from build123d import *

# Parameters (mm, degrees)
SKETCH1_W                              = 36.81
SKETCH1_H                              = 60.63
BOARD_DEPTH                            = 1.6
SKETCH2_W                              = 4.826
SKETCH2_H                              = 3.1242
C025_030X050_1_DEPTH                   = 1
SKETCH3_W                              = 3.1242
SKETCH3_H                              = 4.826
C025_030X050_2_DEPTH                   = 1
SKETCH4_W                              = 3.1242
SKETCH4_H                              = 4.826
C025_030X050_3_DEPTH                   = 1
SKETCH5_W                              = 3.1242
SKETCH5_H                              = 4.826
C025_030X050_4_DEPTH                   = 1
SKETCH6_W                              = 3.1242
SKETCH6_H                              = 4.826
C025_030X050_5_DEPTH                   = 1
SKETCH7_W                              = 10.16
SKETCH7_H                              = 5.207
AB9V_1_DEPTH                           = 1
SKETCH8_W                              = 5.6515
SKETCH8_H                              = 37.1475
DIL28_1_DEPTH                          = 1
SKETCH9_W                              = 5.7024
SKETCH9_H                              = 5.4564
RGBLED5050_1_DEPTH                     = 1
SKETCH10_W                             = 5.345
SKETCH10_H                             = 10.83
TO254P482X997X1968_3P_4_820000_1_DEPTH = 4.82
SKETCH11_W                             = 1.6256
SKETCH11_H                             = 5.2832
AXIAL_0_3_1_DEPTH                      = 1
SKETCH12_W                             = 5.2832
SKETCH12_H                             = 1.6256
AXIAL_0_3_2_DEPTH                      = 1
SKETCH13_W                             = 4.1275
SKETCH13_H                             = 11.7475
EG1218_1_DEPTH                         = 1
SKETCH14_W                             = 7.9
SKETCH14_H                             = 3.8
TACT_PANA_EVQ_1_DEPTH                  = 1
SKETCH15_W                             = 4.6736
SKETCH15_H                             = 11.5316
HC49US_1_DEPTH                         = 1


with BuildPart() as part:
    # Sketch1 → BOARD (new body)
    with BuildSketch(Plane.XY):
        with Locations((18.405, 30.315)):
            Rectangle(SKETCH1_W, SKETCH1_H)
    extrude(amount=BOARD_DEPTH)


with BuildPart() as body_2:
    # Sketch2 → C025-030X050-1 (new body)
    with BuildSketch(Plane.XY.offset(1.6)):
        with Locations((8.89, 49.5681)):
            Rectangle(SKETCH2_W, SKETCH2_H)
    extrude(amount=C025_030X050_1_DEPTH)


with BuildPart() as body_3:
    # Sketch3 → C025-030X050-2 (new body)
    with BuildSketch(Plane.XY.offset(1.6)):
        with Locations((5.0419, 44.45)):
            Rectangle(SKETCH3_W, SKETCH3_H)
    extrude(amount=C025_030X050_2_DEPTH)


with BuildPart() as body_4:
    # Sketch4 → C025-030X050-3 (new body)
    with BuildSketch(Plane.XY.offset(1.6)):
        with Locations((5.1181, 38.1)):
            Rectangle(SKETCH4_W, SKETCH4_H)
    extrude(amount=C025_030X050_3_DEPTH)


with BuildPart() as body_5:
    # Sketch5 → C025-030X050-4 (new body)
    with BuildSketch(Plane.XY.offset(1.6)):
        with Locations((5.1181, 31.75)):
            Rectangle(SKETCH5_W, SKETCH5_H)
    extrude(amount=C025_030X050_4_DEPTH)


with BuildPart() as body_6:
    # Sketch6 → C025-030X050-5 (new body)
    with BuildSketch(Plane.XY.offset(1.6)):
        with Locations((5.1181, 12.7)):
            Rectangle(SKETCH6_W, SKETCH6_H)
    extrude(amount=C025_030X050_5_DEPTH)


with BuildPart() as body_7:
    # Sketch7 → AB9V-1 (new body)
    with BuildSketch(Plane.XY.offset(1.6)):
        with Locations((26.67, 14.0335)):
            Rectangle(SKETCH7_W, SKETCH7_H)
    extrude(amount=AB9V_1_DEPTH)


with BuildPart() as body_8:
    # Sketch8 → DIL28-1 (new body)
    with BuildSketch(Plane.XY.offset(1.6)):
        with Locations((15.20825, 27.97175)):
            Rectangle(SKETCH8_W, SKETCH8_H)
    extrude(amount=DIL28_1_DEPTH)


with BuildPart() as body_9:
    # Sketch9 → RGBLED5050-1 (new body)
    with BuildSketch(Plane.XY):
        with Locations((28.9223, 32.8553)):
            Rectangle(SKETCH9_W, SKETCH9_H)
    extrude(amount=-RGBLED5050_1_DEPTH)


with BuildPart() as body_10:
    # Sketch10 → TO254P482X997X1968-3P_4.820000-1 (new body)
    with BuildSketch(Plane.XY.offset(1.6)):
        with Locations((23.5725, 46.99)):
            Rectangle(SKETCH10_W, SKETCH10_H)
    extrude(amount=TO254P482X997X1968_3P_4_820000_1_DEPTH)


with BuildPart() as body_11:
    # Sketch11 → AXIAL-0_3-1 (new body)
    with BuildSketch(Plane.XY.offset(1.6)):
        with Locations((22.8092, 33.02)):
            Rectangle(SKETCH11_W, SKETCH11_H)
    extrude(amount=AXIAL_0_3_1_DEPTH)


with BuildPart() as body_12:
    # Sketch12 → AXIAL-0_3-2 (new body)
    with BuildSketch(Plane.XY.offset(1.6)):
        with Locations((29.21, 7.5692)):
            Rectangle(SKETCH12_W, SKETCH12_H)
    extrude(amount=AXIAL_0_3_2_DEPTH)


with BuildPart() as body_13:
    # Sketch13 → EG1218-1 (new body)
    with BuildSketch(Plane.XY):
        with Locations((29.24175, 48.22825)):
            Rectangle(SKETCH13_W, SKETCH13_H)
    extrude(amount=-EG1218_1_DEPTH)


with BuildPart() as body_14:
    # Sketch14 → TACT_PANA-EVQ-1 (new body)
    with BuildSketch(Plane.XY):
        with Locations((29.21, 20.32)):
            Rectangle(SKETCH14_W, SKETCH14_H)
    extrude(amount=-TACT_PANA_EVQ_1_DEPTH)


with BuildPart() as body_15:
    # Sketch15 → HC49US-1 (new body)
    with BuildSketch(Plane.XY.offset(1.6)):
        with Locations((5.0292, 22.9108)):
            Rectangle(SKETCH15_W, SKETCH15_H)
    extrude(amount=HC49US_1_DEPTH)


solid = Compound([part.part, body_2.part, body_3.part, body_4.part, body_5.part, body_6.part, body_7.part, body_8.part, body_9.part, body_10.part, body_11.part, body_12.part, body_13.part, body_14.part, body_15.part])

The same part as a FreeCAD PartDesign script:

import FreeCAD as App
import Part
import Sketcher

V = App.Vector
Q = App.Units.Quantity

doc = App.newDocument("Part")
body = doc.addObject("PartDesign::Body", "Body")

sketch1 = doc.addObject("Sketcher::SketchObject", "Sketch")
body.addObject(sketch1)
sketch1.AttachmentSupport = (doc.XY_Plane, [""])
sketch1.MapMode = "FlatFace"
sketch1.addGeometry(Part.LineSegment(V(0, 61, 0), V(0, 0, 0)), False)
sketch1.addGeometry(Part.LineSegment(V(0, 0, 0), V(37, 0, 0)), False)
sketch1.addGeometry(Part.LineSegment(V(37, 0, 0), V(37, 61, 0)), False)
sketch1.addGeometry(Part.LineSegment(V(37, 61, 0), V(0, 61, 0)), False)
sketch1.addConstraint(Sketcher.Constraint("Coincident", 0, 2, 1, 1))
sketch1.addConstraint(Sketcher.Constraint("Coincident", 1, 2, 2, 1))
sketch1.addConstraint(Sketcher.Constraint("Coincident", 2, 2, 3, 1))
sketch1.addConstraint(Sketcher.Constraint("Coincident", 3, 2, 0, 1))
sketch1.addConstraint(Sketcher.Constraint("Vertical", 0))
sketch1.addConstraint(Sketcher.Constraint("Horizontal", 1))
sketch1.addConstraint(Sketcher.Constraint("Vertical", 2))
sketch1.addConstraint(Sketcher.Constraint("Horizontal", 3))
sketch1.addConstraint(Sketcher.Constraint("Coincident", 0, 2, -1, 1))
sketch1.addConstraint(Sketcher.Constraint("DistanceX", 1, 1, 1, 2, Q("36.81 mm")))
sketch1.addConstraint(Sketcher.Constraint("DistanceY", 0, 2, 0, 1, Q("60.63 mm")))
pad1 = doc.addObject("PartDesign::Pad", "Pad")
body.addObject(pad1)
pad1.Profile = sketch1
pad1.Length = 1.6
body2 = doc.addObject("PartDesign::Body", "Body001")

sketch2 = doc.addObject("Sketcher::SketchObject", "Sketch001")
body2.addObject(sketch2)
sketch2.AttachmentSupport = (doc.getObject("XY_Plane001"), [""])
sketch2.MapMode = "FlatFace"
sketch2.AttachmentOffset = App.Placement(V(0, 0, 1.6), App.Rotation())
sketch2.addGeometry(Part.LineSegment(V(6.5, 51.1, 0), V(6.5, 48, 0)), False)
sketch2.addGeometry(Part.LineSegment(V(6.5, 48, 0), V(11.3, 48, 0)), False)
sketch2.addGeometry(Part.LineSegment(V(11.3, 48, 0), V(11.3, 51.1, 0)), False)
sketch2.addGeometry(Part.LineSegment(V(11.3, 51.1, 0), V(6.5, 51.1, 0)), False)
sketch2.addConstraint(Sketcher.Constraint("Coincident", 0, 2, 1, 1))
sketch2.addConstraint(Sketcher.Constraint("Coincident", 1, 2, 2, 1))
sketch2.addConstraint(Sketcher.Constraint("Coincident", 2, 2, 3, 1))
sketch2.addConstraint(Sketcher.Constraint("Coincident", 3, 2, 0, 1))
sketch2.addConstraint(Sketcher.Constraint("Vertical", 0))
sketch2.addConstraint(Sketcher.Constraint("Horizontal", 1))
sketch2.addConstraint(Sketcher.Constraint("Vertical", 2))
sketch2.addConstraint(Sketcher.Constraint("Horizontal", 3))
sketch2.addConstraint(Sketcher.Constraint("DistanceX", 1, 1, 1, 2, Q("0.19 in")))
sketch2.addConstraint(Sketcher.Constraint("DistanceY", 0, 2, 0, 1, Q("0.123 in")))
sketch2.addConstraint(Sketcher.Constraint("DistanceY", -1, 1, 0, 2, Q("1.89 in")))
sketch2.addConstraint(Sketcher.Constraint("DistanceX", -1, 1, 0, 2, Q("0.255 in")))
pad2 = doc.addObject("PartDesign::Pad", "Pad001")
body2.addObject(pad2)
pad2.Profile = sketch2
pad2.Length = 1
body3 = doc.addObject("PartDesign::Body", "Body002")

sketch3 = doc.addObject("Sketcher::SketchObject", "Sketch002")
body3.addObject(sketch3)
sketch3.AttachmentSupport = (doc.getObject("XY_Plane002"), [""])
sketch3.MapMode = "FlatFace"
sketch3.AttachmentOffset = App.Placement(V(0, 0, 1.6), App.Rotation())
sketch3.addGeometry(Part.LineSegment(V(3.5, 46.9, 0), V(3.5, 42, 0)), False)
sketch3.addGeometry(Part.LineSegment(V(3.5, 42, 0), V(6.6, 42, 0)), False)
sketch3.addGeometry(Part.LineSegment(V(6.6, 42, 0), V(6.6, 46.9, 0)), False)
sketch3.addGeometry(Part.LineSegment(V(6.6, 46.9, 0), V(3.5, 46.9, 0)), False)
sketch3.addConstraint(Sketcher.Constraint("Coincident", 0, 2, 1, 1))
sketch3.addConstraint(Sketcher.Constraint("Coincident", 1, 2, 2, 1))
sketch3.addConstraint(Sketcher.Constraint("Coincident", 2, 2, 3, 1))
sketch3.addConstraint(Sketcher.Constraint("Coincident", 3, 2, 0, 1))
sketch3.addConstraint(Sketcher.Constraint("Vertical", 0))
sketch3.addConstraint(Sketcher.Constraint("Horizontal", 1))
sketch3.addConstraint(Sketcher.Constraint("Vertical", 2))
sketch3.addConstraint(Sketcher.Constraint("Horizontal", 3))
sketch3.addConstraint(Sketcher.Constraint("DistanceY", 0, 2, 0, 1, Q("0.19 in")))
sketch3.addConstraint(Sketcher.Constraint("DistanceX", 1, 1, 1, 2, Q("0.123 in")))
sketch3.addConstraint(Sketcher.Constraint("DistanceX", -1, 1, 1, 2, Q("0.26 in")))
sketch3.addConstraint(Sketcher.Constraint("DistanceY", -1, 1, 0, 2, Q("1.655 in")))
pad3 = doc.addObject("PartDesign::Pad", "Pad002")
body3.addObject(pad3)
pad3.Profile = sketch3
pad3.Length = 1
body4 = doc.addObject("PartDesign::Body", "Body003")

sketch4 = doc.addObject("Sketcher::SketchObject", "Sketch003")
body4.addObject(sketch4)
sketch4.AttachmentSupport = (doc.getObject("XY_Plane003"), [""])
sketch4.MapMode = "FlatFace"
sketch4.AttachmentOffset = App.Placement(V(0, 0, 1.6), App.Rotation())
sketch4.addGeometry(Part.LineSegment(V(3.6, 40.5, 0), V(3.6, 35.7, 0)), False)
sketch4.addGeometry(Part.LineSegment(V(3.6, 35.7, 0), V(6.7, 35.7, 0)), False)
sketch4.addGeometry(Part.LineSegment(V(6.7, 35.7, 0), V(6.7, 40.5, 0)), False)
sketch4.addGeometry(Part.LineSegment(V(6.7, 40.5, 0), V(3.6, 40.5, 0)), False)
sketch4.addConstraint(Sketcher.Constraint("Coincident", 0, 2, 1, 1))
sketch4.addConstraint(Sketcher.Constraint("Coincident", 1, 2, 2, 1))
sketch4.addConstraint(Sketcher.Constraint("Coincident", 2, 2, 3, 1))
sketch4.addConstraint(Sketcher.Constraint("Coincident", 3, 2, 0, 1))
sketch4.addConstraint(Sketcher.Constraint("Vertical", 0))
sketch4.addConstraint(Sketcher.Constraint("Horizontal", 1))
sketch4.addConstraint(Sketcher.Constraint("Vertical", 2))
sketch4.addConstraint(Sketcher.Constraint("Horizontal", 3))
sketch4.addConstraint(Sketcher.Constraint("DistanceY", 0, 2, 0, 1, Q("0.19 in")))
sketch4.addConstraint(Sketcher.Constraint("DistanceX", 1, 1, 1, 2, Q("0.123 in")))
sketch4.addConstraint(Sketcher.Constraint("DistanceX", -1, 1, 0, 2, Q("0.14 in")))
sketch4.addConstraint(Sketcher.Constraint("DistanceY", -1, 1, 0, 2, Q("1.405 in")))
pad4 = doc.addObject("PartDesign::Pad", "Pad003")
body4.addObject(pad4)
pad4.Profile = sketch4
pad4.Length = 1
body5 = doc.addObject("PartDesign::Body", "Body004")

sketch5 = doc.addObject("Sketcher::SketchObject", "Sketch004")
body5.addObject(sketch5)
sketch5.AttachmentSupport = (doc.getObject("XY_Plane004"), [""])
sketch5.MapMode = "FlatFace"
sketch5.AttachmentOffset = App.Placement(V(0, 0, 1.6), App.Rotation())
sketch5.addGeometry(Part.LineSegment(V(3.6, 34.2, 0), V(3.6, 29.3, 0)), False)
sketch5.addGeometry(Part.LineSegment(V(3.6, 29.3, 0), V(6.7, 29.3, 0)), False)
sketch5.addGeometry(Part.LineSegment(V(6.7, 29.3, 0), V(6.7, 34.2, 0)), False)
sketch5.addGeometry(Part.LineSegment(V(6.7, 34.2, 0), V(3.6, 34.2, 0)), False)
sketch5.addConstraint(Sketcher.Constraint("Coincident", 0, 2, 1, 1))
sketch5.addConstraint(Sketcher.Constraint("Coincident", 1, 2, 2, 1))
sketch5.addConstraint(Sketcher.Constraint("Coincident", 2, 2, 3, 1))
sketch5.addConstraint(Sketcher.Constraint("Coincident", 3, 2, 0, 1))
sketch5.addConstraint(Sketcher.Constraint("Vertical", 0))
sketch5.addConstraint(Sketcher.Constraint("Horizontal", 1))
sketch5.addConstraint(Sketcher.Constraint("Vertical", 2))
sketch5.addConstraint(Sketcher.Constraint("Horizontal", 3))
sketch5.addConstraint(Sketcher.Constraint("DistanceY", 0, 2, 0, 1, Q("0.19 in")))
sketch5.addConstraint(Sketcher.Constraint("DistanceX", 1, 1, 1, 2, Q("0.123 in")))
sketch5.addConstraint(Sketcher.Constraint("DistanceX", -1, 1, 0, 2, Q("0.14 in")))
sketch5.addConstraint(Sketcher.Constraint("DistanceY", -1, 1, 0, 2, Q("1.155 in")))
pad5 = doc.addObject("PartDesign::Pad", "Pad004")
body5.addObject(pad5)
pad5.Profile = sketch5
pad5.Length = 1
body6 = doc.addObject("PartDesign::Body", "Body005")

sketch6 = doc.addObject("Sketcher::SketchObject", "Sketch005")
body6.addObject(sketch6)
sketch6.AttachmentSupport = (doc.getObject("XY_Plane005"), [""])
sketch6.MapMode = "FlatFace"
sketch6.AttachmentOffset = App.Placement(V(0, 0, 1.6), App.Rotation())
sketch6.addGeometry(Part.LineSegment(V(3.6, 15.1, 0), V(3.6, 10.3, 0)), False)
sketch6.addGeometry(Part.LineSegment(V(3.6, 10.3, 0), V(6.7, 10.3, 0)), False)
sketch6.addGeometry(Part.LineSegment(V(6.7, 10.3, 0), V(6.7, 15.1, 0)), False)
sketch6.addGeometry(Part.LineSegment(V(6.7, 15.1, 0), V(3.6, 15.1, 0)), False)
sketch6.addConstraint(Sketcher.Constraint("Coincident", 0, 2, 1, 1))
sketch6.addConstraint(Sketcher.Constraint("Coincident", 1, 2, 2, 1))
sketch6.addConstraint(Sketcher.Constraint("Coincident", 2, 2, 3, 1))
sketch6.addConstraint(Sketcher.Constraint("Coincident", 3, 2, 0, 1))
sketch6.addConstraint(Sketcher.Constraint("Vertical", 0))
sketch6.addConstraint(Sketcher.Constraint("Horizontal", 1))
sketch6.addConstraint(Sketcher.Constraint("Vertical", 2))
sketch6.addConstraint(Sketcher.Constraint("Horizontal", 3))
sketch6.addConstraint(Sketcher.Constraint("DistanceY", 0, 2, 0, 1, Q("0.19 in")))
sketch6.addConstraint(Sketcher.Constraint("DistanceX", 1, 1, 1, 2, Q("0.123 in")))
sketch6.addConstraint(Sketcher.Constraint("DistanceX", -1, 1, 0, 2, Q("0.14 in")))
sketch6.addConstraint(Sketcher.Constraint("DistanceY", -1, 1, 0, 2, Q("0.405 in")))
pad6 = doc.addObject("PartDesign::Pad", "Pad005")
body6.addObject(pad6)
pad6.Profile = sketch6
pad6.Length = 1
body7 = doc.addObject("PartDesign::Body", "Body006")

sketch7 = doc.addObject("Sketcher::SketchObject", "Sketch006")
body7.addObject(sketch7)
sketch7.AttachmentSupport = (doc.getObject("XY_Plane006"), [""])
sketch7.MapMode = "FlatFace"
sketch7.AttachmentOffset = App.Placement(V(0, 0, 1.6), App.Rotation())
sketch7.addGeometry(Part.LineSegment(V(22, 17, 0), V(22, 11, 0)), False)
sketch7.addGeometry(Part.LineSegment(V(22, 11, 0), V(32, 11, 0)), False)
sketch7.addGeometry(Part.LineSegment(V(32, 11, 0), V(32, 17, 0)), False)
sketch7.addGeometry(Part.LineSegment(V(32, 17, 0), V(22, 17, 0)), False)
sketch7.addConstraint(Sketcher.Constraint("Coincident", 0, 2, 1, 1))
sketch7.addConstraint(Sketcher.Constraint("Coincident", 1, 2, 2, 1))
sketch7.addConstraint(Sketcher.Constraint("Coincident", 2, 2, 3, 1))
sketch7.addConstraint(Sketcher.Constraint("Coincident", 3, 2, 0, 1))
sketch7.addConstraint(Sketcher.Constraint("Vertical", 0))
sketch7.addConstraint(Sketcher.Constraint("Horizontal", 1))
sketch7.addConstraint(Sketcher.Constraint("Vertical", 2))
sketch7.addConstraint(Sketcher.Constraint("Horizontal", 3))
sketch7.addConstraint(Sketcher.Constraint("DistanceX", 1, 1, 1, 2, Q("0.4 in")))
sketch7.addConstraint(Sketcher.Constraint("DistanceY", 0, 2, 0, 1, Q("0.205 in")))
sketch7.addConstraint(Sketcher.Constraint("DistanceX", -1, 1, 0, 2, Q("0.85 in")))
sketch7.addConstraint(Sketcher.Constraint("DistanceY", -1, 1, 0, 2, Q("0.45 in")))
pad7 = doc.addObject("PartDesign::Pad", "Pad006")
body7.addObject(pad7)
pad7.Profile = sketch7
pad7.Length = 1
body8 = doc.addObject("PartDesign::Body", "Body007")

sketch8 = doc.addObject("Sketcher::SketchObject", "Sketch007")
body8.addObject(sketch8)
sketch8.AttachmentSupport = (doc.getObject("XY_Plane007"), [""])
sketch8.MapMode = "FlatFace"
sketch8.AttachmentOffset = App.Placement(V(0, 0, 1.6), App.Rotation())
sketch8.addGeometry(Part.LineSegment(V(12, 47, 0), V(12, 9, 0)), False)
sketch8.addGeometry(Part.LineSegment(V(12, 9, 0), V(18, 9, 0)), False)
sketch8.addGeometry(Part.LineSegment(V(18, 9, 0), V(18, 47, 0)), False)
sketch8.addGeometry(Part.LineSegment(V(18, 47, 0), V(12, 47, 0)), False)
sketch8.addConstraint(Sketcher.Constraint("Coincident", 0, 2, 1, 1))
sketch8.addConstraint(Sketcher.Constraint("Coincident", 1, 2, 2, 1))
sketch8.addConstraint(Sketcher.Constraint("Coincident", 2, 2, 3, 1))
sketch8.addConstraint(Sketcher.Constraint("Coincident", 3, 2, 0, 1))
sketch8.addConstraint(Sketcher.Constraint("Vertical", 0))
sketch8.addConstraint(Sketcher.Constraint("Horizontal", 1))
sketch8.addConstraint(Sketcher.Constraint("Vertical", 2))
sketch8.addConstraint(Sketcher.Constraint("Horizontal", 3))
sketch8.addConstraint(Sketcher.Constraint("DistanceY", -1, 1, 0, 2, Q("0.37 in")))
sketch8.addConstraint(Sketcher.Constraint("DistanceX", -1, 1, 1, 2, Q("0.71 in")))
sketch8.addConstraint(Sketcher.Constraint("DistanceX", 1, 1, 1, 2, Q("0.2225 in")))
sketch8.addConstraint(Sketcher.Constraint("DistanceY", 0, 2, 0, 1, Q("1.4625 in")))
pad8 = doc.addObject("PartDesign::Pad", "Pad007")
body8.addObject(pad8)
pad8.Profile = sketch8
pad8.Length = 1
body9 = doc.addObject("PartDesign::Body", "Body008")

sketch9 = doc.addObject("Sketcher::SketchObject", "Sketch008")
body9.addObject(sketch9)
sketch9.AttachmentSupport = (doc.getObject("XY_Plane008"), [""])
sketch9.MapMode = "FlatFace"
sketch9.addGeometry(Part.LineSegment(V(26, 36, 0), V(26, 30, 0)), False)
sketch9.addGeometry(Part.LineSegment(V(26, 30, 0), V(32, 30, 0)), False)
sketch9.addGeometry(Part.LineSegment(V(32, 30, 0), V(32, 36, 0)), False)
sketch9.addGeometry(Part.LineSegment(V(32, 36, 0), V(26, 36, 0)), False)
sketch9.addConstraint(Sketcher.Constraint("Coincident", 0, 2, 1, 1))
sketch9.addConstraint(Sketcher.Constraint("Coincident", 1, 2, 2, 1))
sketch9.addConstraint(Sketcher.Constraint("Coincident", 2, 2, 3, 1))
sketch9.addConstraint(Sketcher.Constraint("Coincident", 3, 2, 0, 1))
sketch9.addConstraint(Sketcher.Constraint("Vertical", 0))
sketch9.addConstraint(Sketcher.Constraint("Horizontal", 1))
sketch9.addConstraint(Sketcher.Constraint("Vertical", 2))
sketch9.addConstraint(Sketcher.Constraint("Horizontal", 3))
sketch9.addConstraint(Sketcher.Constraint("DistanceX", 1, 1, 1, 2, Q("5.7024 mm")))
sketch9.addConstraint(Sketcher.Constraint("DistanceY", 0, 2, 0, 1, Q("5.4564 mm")))
sketch9.addConstraint(Sketcher.Constraint("DistanceX", -1, 1, 0, 2, Q("26.0711 mm")))
sketch9.addConstraint(Sketcher.Constraint("DistanceY", -1, 1, 0, 2, Q("30.1271 mm")))
pad9 = doc.addObject("PartDesign::Pad", "Pad008")
body9.addObject(pad9)
pad9.Profile = sketch9
pad9.Length = 1
pad9.Reversed = True
body10 = doc.addObject("PartDesign::Body", "Body009")

sketch10 = doc.addObject("Sketcher::SketchObject", "Sketch009")
body10.addObject(sketch10)
sketch10.AttachmentSupport = (doc.getObject("XY_Plane009"), [""])
sketch10.MapMode = "FlatFace"
sketch10.AttachmentOffset = App.Placement(V(0, 0, 1.6), App.Rotation())
sketch10.addGeometry(Part.LineSegment(V(21, 52, 0), V(21, 42, 0)), False)
sketch10.addGeometry(Part.LineSegment(V(21, 42, 0), V(26, 42, 0)), False)
sketch10.addGeometry(Part.LineSegment(V(26, 42, 0), V(26, 52, 0)), False)
sketch10.addGeometry(Part.LineSegment(V(26, 52, 0), V(21, 52, 0)), False)
sketch10.addConstraint(Sketcher.Constraint("Coincident", 0, 2, 1, 1))
sketch10.addConstraint(Sketcher.Constraint("Coincident", 1, 2, 2, 1))
sketch10.addConstraint(Sketcher.Constraint("Coincident", 2, 2, 3, 1))
sketch10.addConstraint(Sketcher.Constraint("Coincident", 3, 2, 0, 1))
sketch10.addConstraint(Sketcher.Constraint("Vertical", 0))
sketch10.addConstraint(Sketcher.Constraint("Horizontal", 1))
sketch10.addConstraint(Sketcher.Constraint("Vertical", 2))
sketch10.addConstraint(Sketcher.Constraint("Horizontal", 3))
sketch10.addConstraint(Sketcher.Constraint("DistanceX", 1, 1, 1, 2, Q("5.345 mm")))
sketch10.addConstraint(Sketcher.Constraint("DistanceY", 0, 2, 0, 1, Q("10.83 mm")))
sketch10.addConstraint(Sketcher.Constraint("DistanceX", -1, 1, 0, 2, Q("20.9 mm")))
sketch10.addConstraint(Sketcher.Constraint("DistanceY", -1, 1, 0, 2, Q("41.575 mm")))
pad10 = doc.addObject("PartDesign::Pad", "Pad009")
body10.addObject(pad10)
pad10.Profile = sketch10
pad10.Length = 4.82
body11 = doc.addObject("PartDesign::Body", "Body010")

sketch11 = doc.addObject("Sketcher::SketchObject", "Sketch010")
body11.addObject(sketch11)
sketch11.AttachmentSupport = (doc.getObject("XY_Plane010"), [""])
sketch11.MapMode = "FlatFace"
sketch11.AttachmentOffset = App.Placement(V(0, 0, 1.6), App.Rotation())
sketch11.addGeometry(Part.LineSegment(V(22, 35.7, 0), V(22, 30.4, 0)), False)
sketch11.addGeometry(Part.LineSegment(V(22, 30.4, 0), V(23.6, 30.4, 0)), False)
sketch11.addGeometry(Part.LineSegment(V(23.6, 30.4, 0), V(23.6, 35.7, 0)), False)
sketch11.addGeometry(Part.LineSegment(V(23.6, 35.7, 0), V(22, 35.7, 0)), False)
sketch11.addConstraint(Sketcher.Constraint("Coincident", 0, 2, 1, 1))
sketch11.addConstraint(Sketcher.Constraint("Coincident", 1, 2, 2, 1))
sketch11.addConstraint(Sketcher.Constraint("Coincident", 2, 2, 3, 1))
sketch11.addConstraint(Sketcher.Constraint("Coincident", 3, 2, 0, 1))
sketch11.addConstraint(Sketcher.Constraint("Vertical", 0))
sketch11.addConstraint(Sketcher.Constraint("Horizontal", 1))
sketch11.addConstraint(Sketcher.Constraint("Vertical", 2))
sketch11.addConstraint(Sketcher.Constraint("Horizontal", 3))
sketch11.addConstraint(Sketcher.Constraint("DistanceX", 1, 1, 1, 2, Q("0.064 in")))
sketch11.addConstraint(Sketcher.Constraint("DistanceY", 0, 2, 0, 1, Q("0.208 in")))
sketch11.addConstraint(Sketcher.Constraint("DistanceX", -1, 1, 1, 2, Q("0.93 in")))
sketch11.addConstraint(Sketcher.Constraint("DistanceY", -1, 1, 0, 2, Q("1.196 in")))
pad11 = doc.addObject("PartDesign::Pad", "Pad010")
body11.addObject(pad11)
pad11.Profile = sketch11
pad11.Length = 1
body12 = doc.addObject("PartDesign::Body", "Body011")

sketch12 = doc.addObject("Sketcher::SketchObject", "Sketch011")
body12.addObject(sketch12)
sketch12.AttachmentSupport = (doc.getObject("XY_Plane011"), [""])
sketch12.MapMode = "FlatFace"
sketch12.AttachmentOffset = App.Placement(V(0, 0, 1.6), App.Rotation())
sketch12.addGeometry(Part.LineSegment(V(26.6, 8.4, 0), V(26.6, 6.8, 0)), False)
sketch12.addGeometry(Part.LineSegment(V(26.6, 6.8, 0), V(31.9, 6.8, 0)), False)
sketch12.addGeometry(Part.LineSegment(V(31.9, 6.8, 0), V(31.9, 8.4, 0)), False)
sketch12.addGeometry(Part.LineSegment(V(31.9, 8.4, 0), V(26.6, 8.4, 0)), False)
sketch12.addConstraint(Sketcher.Constraint("Coincident", 0, 2, 1, 1))
sketch12.addConstraint(Sketcher.Constraint("Coincident", 1, 2, 2, 1))
sketch12.addConstraint(Sketcher.Constraint("Coincident", 2, 2, 3, 1))
sketch12.addConstraint(Sketcher.Constraint("Coincident", 3, 2, 0, 1))
sketch12.addConstraint(Sketcher.Constraint("Vertical", 0))
sketch12.addConstraint(Sketcher.Constraint("Horizontal", 1))
sketch12.addConstraint(Sketcher.Constraint("Vertical", 2))
sketch12.addConstraint(Sketcher.Constraint("Horizontal", 3))
sketch12.addConstraint(Sketcher.Constraint("DistanceX", 1, 1, 1, 2, Q("0.208 in")))
sketch12.addConstraint(Sketcher.Constraint("DistanceY", 0, 2, 0, 1, Q("0.064 in")))
sketch12.addConstraint(Sketcher.Constraint("DistanceY", -1, 1, 2, 2, Q("0.33 in")))
sketch12.addConstraint(Sketcher.Constraint("DistanceX", -1, 1, 0, 2, Q("1.046 in")))
pad12 = doc.addObject("PartDesign::Pad", "Pad011")
body12.addObject(pad12)
pad12.Profile = sketch12
pad12.Length = 1
body13 = doc.addObject("PartDesign::Body", "Body012")

sketch13 = doc.addObject("Sketcher::SketchObject", "Sketch012")
body13.addObject(sketch13)
sketch13.AttachmentSupport = (doc.getObject("XY_Plane012"), [""])
sketch13.MapMode = "FlatFace"
sketch13.addGeometry(Part.LineSegment(V(27.2, 54.1, 0), V(27.2, 42.4, 0)), False)
sketch13.addGeometry(Part.LineSegment(V(27.2, 42.4, 0), V(31.3, 42.4, 0)), False)
sketch13.addGeometry(Part.LineSegment(V(31.3, 42.4, 0), V(31.3, 54.1, 0)), False)
sketch13.addGeometry(Part.LineSegment(V(31.3, 54.1, 0), V(27.2, 54.1, 0)), False)
sketch13.addConstraint(Sketcher.Constraint("Coincident", 0, 2, 1, 1))
sketch13.addConstraint(Sketcher.Constraint("Coincident", 1, 2, 2, 1))
sketch13.addConstraint(Sketcher.Constraint("Coincident", 2, 2, 3, 1))
sketch13.addConstraint(Sketcher.Constraint("Coincident", 3, 2, 0, 1))
sketch13.addConstraint(Sketcher.Constraint("Vertical", 0))
sketch13.addConstraint(Sketcher.Constraint("Horizontal", 1))
sketch13.addConstraint(Sketcher.Constraint("Vertical", 2))
sketch13.addConstraint(Sketcher.Constraint("Horizontal", 3))
sketch13.addConstraint(Sketcher.Constraint("DistanceX", -1, 1, 0, 2, Q("1.07 in")))
sketch13.addConstraint(Sketcher.Constraint("DistanceY", -1, 1, 2, 2, Q("2.13 in")))
sketch13.addConstraint(Sketcher.Constraint("DistanceX", 1, 1, 1, 2, Q("0.1625 in")))
sketch13.addConstraint(Sketcher.Constraint("DistanceY", 0, 2, 0, 1, Q("0.4625 in")))
pad13 = doc.addObject("PartDesign::Pad", "Pad012")
body13.addObject(pad13)
pad13.Profile = sketch13
pad13.Length = 1
pad13.Reversed = True
body14 = doc.addObject("PartDesign::Body", "Body013")

sketch14 = doc.addObject("Sketcher::SketchObject", "Sketch013")
body14.addObject(sketch14)
sketch14.AttachmentSupport = (doc.getObject("XY_Plane013"), [""])
sketch14.MapMode = "FlatFace"
sketch14.addGeometry(Part.LineSegment(V(25.3, 22.2, 0), V(25.3, 18.4, 0)), False)
sketch14.addGeometry(Part.LineSegment(V(25.3, 18.4, 0), V(33.2, 18.4, 0)), False)
sketch14.addGeometry(Part.LineSegment(V(33.2, 18.4, 0), V(33.2, 22.2, 0)), False)
sketch14.addGeometry(Part.LineSegment(V(33.2, 22.2, 0), V(25.3, 22.2, 0)), False)
sketch14.addConstraint(Sketcher.Constraint("Coincident", 0, 2, 1, 1))
sketch14.addConstraint(Sketcher.Constraint("Coincident", 1, 2, 2, 1))
sketch14.addConstraint(Sketcher.Constraint("Coincident", 2, 2, 3, 1))
sketch14.addConstraint(Sketcher.Constraint("Coincident", 3, 2, 0, 1))
sketch14.addConstraint(Sketcher.Constraint("Vertical", 0))
sketch14.addConstraint(Sketcher.Constraint("Horizontal", 1))
sketch14.addConstraint(Sketcher.Constraint("Vertical", 2))
sketch14.addConstraint(Sketcher.Constraint("Horizontal", 3))
sketch14.addConstraint(Sketcher.Constraint("DistanceX", 1, 1, 1, 2, Q("7.9 mm")))
sketch14.addConstraint(Sketcher.Constraint("DistanceY", 0, 2, 0, 1, Q("3.8 mm")))
sketch14.addConstraint(Sketcher.Constraint("DistanceX", -1, 1, 0, 2, Q("25.26 mm")))
sketch14.addConstraint(Sketcher.Constraint("DistanceY", -1, 1, 0, 2, Q("18.42 mm")))
pad14 = doc.addObject("PartDesign::Pad", "Pad013")
body14.addObject(pad14)
pad14.Profile = sketch14
pad14.Length = 1
pad14.Reversed = True
body15 = doc.addObject("PartDesign::Body", "Body014")

sketch15 = doc.addObject("Sketcher::SketchObject", "Sketch014")
body15.addObject(sketch15)
sketch15.AttachmentSupport = (doc.getObject("XY_Plane014"), [""])
sketch15.MapMode = "FlatFace"
sketch15.AttachmentOffset = App.Placement(V(0, 0, 1.6), App.Rotation())
sketch15.addGeometry(Part.LineSegment(V(2.7, 28.7, 0), V(2.7, 17.1, 0)), False)
sketch15.addGeometry(Part.LineSegment(V(2.7, 17.1, 0), V(7.4, 17.1, 0)), False)
sketch15.addGeometry(Part.LineSegment(V(7.4, 17.1, 0), V(7.4, 28.7, 0)), False)
sketch15.addGeometry(Part.LineSegment(V(7.4, 28.7, 0), V(2.7, 28.7, 0)), False)
sketch15.addConstraint(Sketcher.Constraint("Coincident", 0, 2, 1, 1))
sketch15.addConstraint(Sketcher.Constraint("Coincident", 1, 2, 2, 1))
sketch15.addConstraint(Sketcher.Constraint("Coincident", 2, 2, 3, 1))
sketch15.addConstraint(Sketcher.Constraint("Coincident", 3, 2, 0, 1))
sketch15.addConstraint(Sketcher.Constraint("Vertical", 0))
sketch15.addConstraint(Sketcher.Constraint("Horizontal", 1))
sketch15.addConstraint(Sketcher.Constraint("Vertical", 2))
sketch15.addConstraint(Sketcher.Constraint("Horizontal", 3))
sketch15.addConstraint(Sketcher.Constraint("DistanceX", 1, 1, 1, 2, Q("0.184 in")))
sketch15.addConstraint(Sketcher.Constraint("DistanceY", 0, 2, 0, 1, Q("0.454 in")))
sketch15.addConstraint(Sketcher.Constraint("DistanceX", -1, 1, 1, 2, Q("0.29 in")))
sketch15.addConstraint(Sketcher.Constraint("DistanceY", -1, 1, 0, 2, Q("0.675 in")))
pad15 = doc.addObject("PartDesign::Pad", "Pad014")
body15.addObject(pad15)
pad15.Profile = sketch15
pad15.Length = 1

doc.recompute()
